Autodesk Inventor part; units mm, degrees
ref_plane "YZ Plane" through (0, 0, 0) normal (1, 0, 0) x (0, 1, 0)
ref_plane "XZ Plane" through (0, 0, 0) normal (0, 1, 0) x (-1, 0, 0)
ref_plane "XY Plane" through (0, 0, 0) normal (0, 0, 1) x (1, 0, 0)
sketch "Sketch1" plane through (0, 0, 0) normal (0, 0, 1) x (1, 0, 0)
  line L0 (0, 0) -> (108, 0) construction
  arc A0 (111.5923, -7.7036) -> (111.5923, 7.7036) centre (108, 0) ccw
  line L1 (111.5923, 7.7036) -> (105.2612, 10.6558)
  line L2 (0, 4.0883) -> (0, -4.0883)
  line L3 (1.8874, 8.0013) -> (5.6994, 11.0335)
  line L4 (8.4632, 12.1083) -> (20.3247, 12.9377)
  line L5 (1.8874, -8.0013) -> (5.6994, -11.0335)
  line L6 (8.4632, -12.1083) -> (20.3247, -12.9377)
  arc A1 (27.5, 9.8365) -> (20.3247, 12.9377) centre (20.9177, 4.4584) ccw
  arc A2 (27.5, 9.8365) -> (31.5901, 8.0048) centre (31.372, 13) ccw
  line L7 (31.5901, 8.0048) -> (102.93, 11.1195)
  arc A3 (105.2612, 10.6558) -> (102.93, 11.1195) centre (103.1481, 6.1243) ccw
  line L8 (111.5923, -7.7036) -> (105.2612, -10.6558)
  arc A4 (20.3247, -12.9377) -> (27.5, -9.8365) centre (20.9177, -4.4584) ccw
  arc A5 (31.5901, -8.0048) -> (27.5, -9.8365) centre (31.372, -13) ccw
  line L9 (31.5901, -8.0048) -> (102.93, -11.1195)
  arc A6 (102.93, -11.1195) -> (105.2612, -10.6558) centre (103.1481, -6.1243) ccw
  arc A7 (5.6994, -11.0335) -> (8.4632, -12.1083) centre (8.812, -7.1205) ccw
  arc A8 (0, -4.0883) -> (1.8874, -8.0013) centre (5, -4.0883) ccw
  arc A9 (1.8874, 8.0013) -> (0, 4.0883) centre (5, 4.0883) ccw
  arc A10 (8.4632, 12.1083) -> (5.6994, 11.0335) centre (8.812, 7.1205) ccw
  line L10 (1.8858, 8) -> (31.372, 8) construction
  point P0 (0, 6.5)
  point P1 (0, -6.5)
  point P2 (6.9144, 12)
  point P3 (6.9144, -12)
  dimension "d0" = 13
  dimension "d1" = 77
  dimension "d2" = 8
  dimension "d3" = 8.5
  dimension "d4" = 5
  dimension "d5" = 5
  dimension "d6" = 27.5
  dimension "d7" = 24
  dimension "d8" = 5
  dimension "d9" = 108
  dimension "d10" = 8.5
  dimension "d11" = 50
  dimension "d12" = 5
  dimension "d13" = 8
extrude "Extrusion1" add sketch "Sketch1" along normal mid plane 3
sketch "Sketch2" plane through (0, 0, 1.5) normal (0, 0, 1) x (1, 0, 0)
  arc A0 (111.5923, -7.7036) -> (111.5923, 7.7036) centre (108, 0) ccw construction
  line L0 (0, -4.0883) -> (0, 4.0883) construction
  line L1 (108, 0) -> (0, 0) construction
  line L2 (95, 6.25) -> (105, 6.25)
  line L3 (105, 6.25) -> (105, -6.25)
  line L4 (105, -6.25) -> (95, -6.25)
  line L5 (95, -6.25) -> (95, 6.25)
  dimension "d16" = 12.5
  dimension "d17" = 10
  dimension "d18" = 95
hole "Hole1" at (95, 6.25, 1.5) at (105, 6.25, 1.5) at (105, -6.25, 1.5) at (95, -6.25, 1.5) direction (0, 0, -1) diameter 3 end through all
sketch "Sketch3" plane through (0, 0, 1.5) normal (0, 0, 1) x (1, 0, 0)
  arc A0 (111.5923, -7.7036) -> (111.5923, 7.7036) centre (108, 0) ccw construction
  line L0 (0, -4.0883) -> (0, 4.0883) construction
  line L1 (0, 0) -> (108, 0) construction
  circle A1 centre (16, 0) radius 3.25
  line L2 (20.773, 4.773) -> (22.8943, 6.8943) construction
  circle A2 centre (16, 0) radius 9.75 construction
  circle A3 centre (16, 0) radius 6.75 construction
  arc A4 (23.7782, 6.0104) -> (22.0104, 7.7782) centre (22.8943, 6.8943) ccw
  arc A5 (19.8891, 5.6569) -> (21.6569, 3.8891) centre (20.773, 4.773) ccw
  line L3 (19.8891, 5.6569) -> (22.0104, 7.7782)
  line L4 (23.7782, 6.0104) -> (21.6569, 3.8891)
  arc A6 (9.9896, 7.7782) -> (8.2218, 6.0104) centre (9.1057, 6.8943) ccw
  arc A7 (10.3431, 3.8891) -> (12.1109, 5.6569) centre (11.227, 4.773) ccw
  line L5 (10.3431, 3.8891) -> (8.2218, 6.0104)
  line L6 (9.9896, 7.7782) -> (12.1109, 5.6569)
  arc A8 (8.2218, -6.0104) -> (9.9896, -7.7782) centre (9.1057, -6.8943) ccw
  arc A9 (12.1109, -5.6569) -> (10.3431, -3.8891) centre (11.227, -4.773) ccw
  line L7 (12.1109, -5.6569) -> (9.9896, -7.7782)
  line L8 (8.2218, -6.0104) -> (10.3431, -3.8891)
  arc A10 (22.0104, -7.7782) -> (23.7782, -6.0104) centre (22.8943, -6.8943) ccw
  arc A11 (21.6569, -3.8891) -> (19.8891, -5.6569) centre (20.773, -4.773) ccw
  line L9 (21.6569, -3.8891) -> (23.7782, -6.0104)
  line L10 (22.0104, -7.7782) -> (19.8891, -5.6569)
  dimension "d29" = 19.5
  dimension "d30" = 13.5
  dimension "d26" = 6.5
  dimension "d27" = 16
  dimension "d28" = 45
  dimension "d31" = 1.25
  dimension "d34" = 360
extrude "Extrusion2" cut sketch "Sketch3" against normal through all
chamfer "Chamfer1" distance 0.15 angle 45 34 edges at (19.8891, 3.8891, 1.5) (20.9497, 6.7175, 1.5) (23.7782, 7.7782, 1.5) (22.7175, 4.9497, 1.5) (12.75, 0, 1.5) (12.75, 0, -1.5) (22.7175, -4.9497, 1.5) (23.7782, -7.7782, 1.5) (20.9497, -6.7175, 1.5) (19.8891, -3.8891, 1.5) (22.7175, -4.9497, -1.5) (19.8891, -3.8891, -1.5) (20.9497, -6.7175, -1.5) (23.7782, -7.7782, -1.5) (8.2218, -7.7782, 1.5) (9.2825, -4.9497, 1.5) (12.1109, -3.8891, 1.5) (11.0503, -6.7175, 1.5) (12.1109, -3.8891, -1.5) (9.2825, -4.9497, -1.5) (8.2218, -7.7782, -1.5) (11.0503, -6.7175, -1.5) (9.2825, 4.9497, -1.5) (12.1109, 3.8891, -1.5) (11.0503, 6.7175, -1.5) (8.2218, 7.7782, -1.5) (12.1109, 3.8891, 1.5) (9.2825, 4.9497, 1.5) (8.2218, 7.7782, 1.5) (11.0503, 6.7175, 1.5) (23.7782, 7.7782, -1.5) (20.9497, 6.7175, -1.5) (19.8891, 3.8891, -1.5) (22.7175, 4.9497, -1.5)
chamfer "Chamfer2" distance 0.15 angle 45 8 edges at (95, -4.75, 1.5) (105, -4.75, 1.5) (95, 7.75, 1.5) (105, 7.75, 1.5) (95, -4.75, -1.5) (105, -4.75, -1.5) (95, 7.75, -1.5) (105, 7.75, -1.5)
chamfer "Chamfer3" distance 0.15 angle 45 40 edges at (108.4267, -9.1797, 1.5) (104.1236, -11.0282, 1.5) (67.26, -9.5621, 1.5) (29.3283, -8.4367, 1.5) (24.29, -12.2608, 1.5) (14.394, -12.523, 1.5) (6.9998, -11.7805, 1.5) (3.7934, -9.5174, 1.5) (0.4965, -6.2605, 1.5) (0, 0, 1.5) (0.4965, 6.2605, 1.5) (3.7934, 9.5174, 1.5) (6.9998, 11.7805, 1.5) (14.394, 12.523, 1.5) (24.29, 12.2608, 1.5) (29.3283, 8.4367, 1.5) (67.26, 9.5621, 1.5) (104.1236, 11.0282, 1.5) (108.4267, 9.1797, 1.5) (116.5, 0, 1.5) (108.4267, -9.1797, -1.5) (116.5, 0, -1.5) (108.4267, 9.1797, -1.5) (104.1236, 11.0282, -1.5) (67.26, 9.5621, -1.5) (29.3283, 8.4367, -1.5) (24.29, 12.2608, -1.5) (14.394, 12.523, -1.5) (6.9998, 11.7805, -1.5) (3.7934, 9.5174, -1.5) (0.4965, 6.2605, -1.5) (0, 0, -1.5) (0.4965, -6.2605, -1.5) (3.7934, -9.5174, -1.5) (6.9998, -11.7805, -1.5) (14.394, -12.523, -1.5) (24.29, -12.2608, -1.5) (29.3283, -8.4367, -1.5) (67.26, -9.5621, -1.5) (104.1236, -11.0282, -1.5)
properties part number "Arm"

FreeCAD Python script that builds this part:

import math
import FreeCAD as App
import Part
import Sketcher
from FreeCAD import Vector
Q = App.Units.Quantity


def edges_at(feature, points):
    """Names of the edges that pass closest to the given points."""
    edges = feature.Shape.Edges
    near = lambda p: min(range(len(edges)), key=lambda i: edges[i].distToShape(Part.Vertex(*p))[0])
    return sorted({f"Edge{near(p) + 1}" for p in points})

doc = App.newDocument("Part")
body = doc.addObject("PartDesign::Body", "Body")

# Sketch on XY plane
sketch1 = doc.addObject("Sketcher::SketchObject", "Sketch")
body.addObject(sketch1)
sketch1.AttachmentSupport = (doc.XY_Plane, [""])
sketch1.MapMode = "FlatFace"
sketch1.addGeometry([
    Part.LineSegment(Vector(105.3, -10.7, 0), Vector(111.6, -7.7, 0)),  # 0
    Part.ArcOfCircle(Part.Circle(Vector(108, 0, 0), Vector(0, 0, 1), 8.5), math.radians(-65), math.radians(65)),  # 1
    Part.LineSegment(Vector(111.6, 7.7, 0), Vector(105.3, 10.7, 0)),  # 2
    Part.ArcOfCircle(Part.Circle(Vector(103.1, 6.1, 0), Vector(0, 0, 1), 5), math.radians(65), math.radians(93)),  # 3
    Part.LineSegment(Vector(102.9, 11.1, 0), Vector(31.6, 8, 0)),  # 4
    Part.ArcOfCircle(Part.Circle(Vector(31.4, 13, 0), Vector(0, 0, 1), 5), math.radians(-141), math.radians(-87)),  # 5
    Part.ArcOfCircle(Part.Circle(Vector(20.9, 4.5, 0), Vector(0, 0, 1), 8.5), math.radians(39), math.radians(94)),  # 6
    Part.LineSegment(Vector(20.3, 12.9, 0), Vector(8.5, 12.1, 0)),  # 7
    Part.ArcOfCircle(Part.Circle(Vector(8.8, 7.1, 0), Vector(0, 0, 1), 5), math.radians(94), math.radians(129)),  # 8
    Part.LineSegment(Vector(5.7, 11, 0), Vector(1.9, 8, 0)),  # 9
    Part.ArcOfCircle(Part.Circle(Vector(5, 4.1, 0), Vector(0, 0, 1), 5), math.radians(129), math.radians(180)),  # 10
    Part.LineSegment(Vector(0, 4.1, 0), Vector(0, -4.1, 0)),  # 11
    Part.ArcOfCircle(Part.Circle(Vector(5, -4.1, 0), Vector(0, 0, 1), 5), math.radians(180), math.radians(231)),  # 12
    Part.LineSegment(Vector(1.9, -8, 0), Vector(5.7, -11, 0)),  # 13
    Part.ArcOfCircle(Part.Circle(Vector(8.8, -7.1, 0), Vector(0, 0, 1), 5), math.radians(-129), math.radians(-94)),  # 14
    Part.LineSegment(Vector(8.5, -12.1, 0), Vector(20.3, -12.9, 0)),  # 15
    Part.ArcOfCircle(Part.Circle(Vector(20.9, -4.5, 0), Vector(0, 0, 1), 8.5), math.radians(-94), math.radians(-39)),  # 16
    Part.ArcOfCircle(Part.Circle(Vector(31.4, -13, 0), Vector(0, 0, 1), 5), math.radians(87), math.radians(141)),  # 17
    Part.LineSegment(Vector(31.6, -8, 0), Vector(102.9, -11.1, 0)),  # 18
    Part.ArcOfCircle(Part.Circle(Vector(103.1, -6.1, 0), Vector(0, 0, 1), 5), math.radians(-93), math.radians(-65)),  # 19
], False)
sketch1.addConstraint([
    Sketcher.Constraint("Tangent", 0, 2, 1, 1),
    Sketcher.Constraint("Tangent", 1, 2, 2, 1),
    Sketcher.Constraint("Tangent", 2, 2, 3, 1),
    Sketcher.Constraint("Tangent", 3, 2, 4, 1),
    Sketcher.Constraint("Tangent", 4, 2, 5, 2),
    Sketcher.Constraint("Tangent", 5, 1, 6, 1),
    Sketcher.Constraint("Tangent", 6, 2, 7, 1),
    Sketcher.Constraint("Tangent", 7, 2, 8, 1),
    Sketcher.Constraint("Tangent", 8, 2, 9, 1),
    Sketcher.Constraint("Tangent", 9, 2, 10, 1),
    Sketcher.Constraint("Tangent", 10, 2, 11, 1),
    Sketcher.Constraint("Tangent", 11, 2, 12, 1),
    Sketcher.Constraint("Tangent", 12, 2, 13, 1),
    Sketcher.Constraint("Tangent", 13, 2, 14, 1),
    Sketcher.Constraint("Tangent", 14, 2, 15, 1),
    Sketcher.Constraint("Tangent", 15, 2, 16, 1),
    Sketcher.Constraint("Tangent", 16, 2, 17, 2),
    Sketcher.Constraint("Tangent", 17, 1, 18, 1),
    Sketcher.Constraint("Tangent", 18, 2, 19, 1),
    Sketcher.Constraint("Tangent", 19, 2, 0, 1),
    Sketcher.Constraint("Vertical", 11),
    Sketcher.Constraint("Equal", 3, 5),
    Sketcher.Constraint("Equal", 1, 6),
    Sketcher.Constraint("Equal", 5, 8),
    Sketcher.Constraint("Equal", 8, 10),
    Sketcher.Constraint("Equal", 10, 12),
    Sketcher.Constraint("Equal", 12, 14),
    Sketcher.Constraint("Equal", 6, 16),
    Sketcher.Constraint("Equal", 14, 17),
    Sketcher.Constraint("Equal", 17, 19),
    Sketcher.Constraint("Symmetric", 10, 2, 11, 2, -1, 1),
    Sketcher.Constraint("Symmetric", 8, 3, 14, 3, -1),
    Sketcher.Constraint("Symmetric", 6, 3, 16, 3, -1),
    Sketcher.Constraint("Symmetric", 3, 3, 19, 3, -1),
    Sketcher.Constraint("PointOnObject", 1, 3, -1),
    Sketcher.Constraint("Vertical", 5, 3, 17, 3),
    Sketcher.Constraint("Radius", 3, 5.0),
    Sketcher.Constraint("Radius", 1, 8.5),
    Sketcher.Constraint("DistanceX", -1, 1, 1, 3, 108.0),
    Sketcher.Constraint("DistanceY", -1, 1, 5, 3, 13.0),
    Sketcher.Constraint("DistanceX", -1, 1, 5, 1, 27.5),
    Sketcher.Constraint("Angle", 0, Q("24.9997 deg")),
    Sketcher.Constraint("Angle", 7, Q("-176.0002 deg")),
    Sketcher.Constraint("Angle", 4, Q("-177.5 deg")),
    Sketcher.Constraint("Angle", 9, Q("-141.5 deg")),
    Sketcher.Constraint("DistanceX", -1, 1, 4, 2, 31.59),
    Sketcher.Constraint("DistanceX", 8, 3, 5, 3, 22.56),
])
pad1 = doc.addObject("PartDesign::Pad", "Pad")
body.addObject(pad1)
pad1.Profile = sketch1
pad1.Length = 3
pad1.Midplane = True

# Sketch on XY plane
sketch2 = doc.addObject("Sketcher::SketchObject", "Sketch001")
body.addObject(sketch2)
sketch2.AttachmentSupport = (doc.XY_Plane, [""])
sketch2.MapMode = "FlatFace"
sketch2.AttachmentOffset = App.Placement(Vector(0, 0, 1.5), App.Rotation())
sketch2.addGeometry([
    Part.Circle(Vector(95, 6.2, 0), Vector(0, 0, 1), 1.5),
    Part.Circle(Vector(105, 6.2, 0), Vector(0, 0, 1), 1.5),
    Part.Circle(Vector(105, -6.2, 0), Vector(0, 0, 1), 1.5),
    Part.Circle(Vector(95, -6.2, 0), Vector(0, 0, 1), 1.5),
], False)
sketch2.addConstraint([
    Sketcher.Constraint("Equal", 0, 1),
    Sketcher.Constraint("Equal", 1, 2),
    Sketcher.Constraint("Equal", 2, 3),
    Sketcher.Constraint("Symmetric", 1, 3, 2, 3, -1),
    Sketcher.Constraint("Symmetric", 0, 3, 3, 3, -1),
    Sketcher.Constraint("Horizontal", 0, 3, 1, 3),
    Sketcher.Constraint("Diameter", 0, 3.0),
    Sketcher.Constraint("DistanceX", -1, 1, 0, 3, 95.0),
    Sketcher.Constraint("DistanceX", -1, 1, 1, 3, 105.0),
    Sketcher.Constraint("DistanceY", 2, 3, 1, 3, 12.5),
])
doc.recompute()
hole = doc.addObject("PartDesign::Hole", "Hole")
body.addObject(hole)
hole.Profile = sketch2
hole.ThreadType = "None"
hole.Diameter = 3
hole.DepthType = "ThroughAll"

# Sketch on XY plane
sketch3 = doc.addObject("Sketcher::SketchObject", "Sketch002")
body.addObject(sketch3)
sketch3.AttachmentSupport = (doc.XY_Plane, [""])
sketch3.MapMode = "FlatFace"
sketch3.AttachmentOffset = App.Placement(Vector(0, 0, 1.5), App.Rotation())
sketch3.addGeometry([
    Part.Circle(Vector(16, 0, 0), Vector(0, 0, 1), 3.2),  # 0
    Part.LineSegment(Vector(21.7, 3.9, 0), Vector(23.8, 6, 0)),  # 1
    Part.ArcOfCircle(Part.Circle(Vector(22.9, 6.9, 0), Vector(0, 0, 1), 1.3), math.radians(-45), math.radians(135)),  # 2
    Part.LineSegment(Vector(22, 7.8, 0), Vector(19.9, 5.7, 0)),  # 3
    Part.ArcOfCircle(Part.Circle(Vector(20.8, 4.8, 0), Vector(0, 0, 1), 1.3), math.radians(135), math.radians(315)),  # 4
    Part.LineSegment(Vector(12.1, 5.7, 0), Vector(10, 7.8, 0)),  # 5
    Part.ArcOfCircle(Part.Circle(Vector(9.1, 6.9, 0), Vector(0, 0, 1), 1.3), math.radians(45), math.radians(225)),  # 6
    Part.LineSegment(Vector(8.2, 6, 0), Vector(10.3, 3.9, 0)),  # 7
    Part.ArcOfCircle(Part.Circle(Vector(11.2, 4.8, 0), Vector(0, 0, 1), 1.3), math.radians(-135), math.radians(45)),  # 8
    Part.LineSegment(Vector(10.3, -3.9, 0), Vector(8.2, -6, 0)),  # 9
    Part.ArcOfCircle(Part.Circle(Vector(9.1, -6.9, 0), Vector(0, 0, 1), 1.3), math.radians(135), math.radians(315)),  # 10
    Part.LineSegment(Vector(10, -7.8, 0), Vector(12.1, -5.7, 0)),  # 11
    Part.ArcOfCircle(Part.Circle(Vector(11.2, -4.8, 0), Vector(0, 0, 1), 1.3), math.radians(-45), math.radians(135)),  # 12
    Part.LineSegment(Vector(19.9, -5.7, 0), Vector(22, -7.8, 0)),  # 13
    Part.ArcOfCircle(Part.Circle(Vector(22.9, -6.9, 0), Vector(0, 0, 1), 1.3), math.radians(-135), math.radians(45)),  # 14
    Part.LineSegment(Vector(23.8, -6, 0), Vector(21.7, -3.9, 0)),  # 15
    Part.ArcOfCircle(Part.Circle(Vector(20.8, -4.8, 0), Vector(0, 0, 1), 1.3), math.radians(45), math.radians(225)),  # 16
], False)
sketch3.addConstraint([
    Sketcher.Constraint("Tangent", 1, 2, 2, 1),
    Sketcher.Constraint("Tangent", 2, 2, 3, 1),
    Sketcher.Constraint("Tangent", 3, 2, 4, 1),
    Sketcher.Constraint("Tangent", 4, 2, 1, 1),
    Sketcher.Constraint("Tangent", 5, 2, 6, 1),
    Sketcher.Constraint("Tangent", 6, 2, 7, 1),
    Sketcher.Constraint("Tangent", 7, 2, 8, 1),
    Sketcher.Constraint("Tangent", 8, 2, 5, 1),
    Sketcher.Constraint("Tangent", 9, 2, 10, 1),
    Sketcher.Constraint("Tangent", 10, 2, 11, 1),
    Sketcher.Constraint("Tangent", 11, 2, 12, 1),
    Sketcher.Constraint("Tangent", 12, 2, 9, 1),
    Sketcher.Constraint("Tangent", 13, 2, 14, 1),
    Sketcher.Constraint("Tangent", 14, 2, 15, 1),
    Sketcher.Constraint("Tangent", 15, 2, 16, 1),
    Sketcher.Constraint("Tangent", 16, 2, 13, 1),
    Sketcher.Constraint("Equal", 2, 4),
    Sketcher.Constraint("Equal", 4, 6),
    Sketcher.Constraint("Equal", 6, 8),
    Sketcher.Constraint("Equal", 8, 10),
    Sketcher.Constraint("Equal", 10, 12),
    Sketcher.Constraint("Equal", 12, 14),
    Sketcher.Constraint("Equal", 14, 16),
    Sketcher.Constraint("Symmetric", 6, 3, 10, 3, -1),
    Sketcher.Constraint("Symmetric", 8, 3, 12, 3, -1),
    Sketcher.Constraint("Symmetric", 2, 3, 14, 3, -1),
    Sketcher.Constraint("Symmetric", 4, 3, 16, 3, -1),
    Sketcher.Constraint("PointOnObject", 0, 3, -1),
    Sketcher.Constraint("Perpendicular", 3, 5),
    Sketcher.Constraint("Perpendicular", 7, 9),
    Sketcher.Constraint("Horizontal", 2, 3, 6, 3),
    Sketcher.Constraint("Horizontal", 4, 3, 8, 3),
    Sketcher.Constraint("Diameter", 0, 6.5),
    Sketcher.Constraint("Radius", 2, 1.25),
    Sketcher.Constraint("DistanceX", -1, 1, 0, 3, 16.0),
    Sketcher.Constraint("Distance", 1, 3.0),
    Sketcher.Constraint("DistanceX", -1, 1, 4, 3, 20.773),
    Sketcher.Constraint("DistanceY", -1, 1, 4, 3, 4.773),
    Sketcher.Constraint("DistanceX", -1, 1, 8, 3, 11.227),
])
pocket1 = doc.addObject("PartDesign::Pocket", "Pocket")
body.addObject(pocket1)
pocket1.Profile = sketch3
pocket1.Type = "ThroughAll"
doc.recompute()

chamfer = doc.addObject("PartDesign::Chamfer", "Chamfer")
body.addObject(chamfer)
chamfer.Base = (pocket1, edges_at(pocket1, [
    (19.889, 3.889, 1.5),
    (20.95, 6.718, 1.5),
    (23.778, 7.778, 1.5),
    (22.718, 4.95, 1.5),
    (12.75, 0, 1.5),
    (12.75, 0, -1.5),
    (22.718, -4.95, 1.5),
    (23.778, -7.778, 1.5),
    (20.95, -6.718, 1.5),
    (19.889, -3.889, 1.5),
    (22.718, -4.95, -1.5),
    (19.889, -3.889, -1.5),
    (20.95, -6.718, -1.5),
    (23.778, -7.778, -1.5),
    (8.222, -7.778, 1.5),
    (9.283, -4.95, 1.5),
    (12.111, -3.889, 1.5),
    (11.05, -6.718, 1.5),
    (12.111, -3.889, -1.5),
    (9.283, -4.95, -1.5),
    (8.222, -7.778, -1.5),
    (11.05, -6.718, -1.5),
    (9.283, 4.95, -1.5),
    (12.111, 3.889, -1.5),
    (11.05, 6.718, -1.5),
    (8.222, 7.778, -1.5),
    (12.111, 3.889, 1.5),
    (9.283, 4.95, 1.5),
    (8.222, 7.778, 1.5),
    (11.05, 6.718, 1.5),
    (23.778, 7.778, -1.5),
    (20.95, 6.718, -1.5),
    (19.889, 3.889, -1.5),
    (22.718, 4.95, -1.5),
]))
chamfer.Size = 0.15
doc.recompute()

chamfer2 = doc.addObject("PartDesign::Chamfer", "Chamfer001")
body.addObject(chamfer2)
chamfer2.Base = (chamfer, edges_at(chamfer, [
    (95, -4.75, 1.5),
    (105, -4.75, 1.5),
    (95, 7.75, 1.5),
    (105, 7.75, 1.5),
    (95, -4.75, -1.5),
    (105, -4.75, -1.5),
    (95, 7.75, -1.5),
    (105, 7.75, -1.5),
]))
chamfer2.Size = 0.15
doc.recompute()

chamfer3 = doc.addObject("PartDesign::Chamfer", "Chamfer002")
body.addObject(chamfer3)
chamfer3.Base = (chamfer2, edges_at(chamfer2, [
    (108.427, -9.18, 1.5),
    (104.124, -11.028, 1.5),
    (67.26, -9.562, 1.5),
    (29.328, -8.437, 1.5),
    (24.29, -12.261, 1.5),
    (14.394, -12.523, 1.5),
    (7, -11.78, 1.5),
    (3.793, -9.517, 1.5),
    (0.496, -6.261, 1.5),
    (0, 0, 1.5),
    (0.496, 6.261, 1.5),
    (3.793, 9.517, 1.5),
    (7, 11.78, 1.5),
    (14.394, 12.523, 1.5),
    (24.29, 12.261, 1.5),
    (29.328, 8.437, 1.5),
    (67.26, 9.562, 1.5),
    (104.124, 11.028, 1.5),
    (108.427, 9.18, 1.5),
    (116.5, 0, 1.5),
    (108.427, -9.18, -1.5),
    (116.5, 0, -1.5),
    (108.427, 9.18, -1.5),
    (104.124, 11.028, -1.5),
    (67.26, 9.562, -1.5),
    (29.328, 8.437, -1.5),
    (24.29, 12.261, -1.5),
    (14.394, 12.523, -1.5),
    (7, 11.78, -1.5),
    (3.793, 9.517, -1.5),
    (0.496, 6.261, -1.5),
    (0, 0, -1.5),
    (0.496, -6.261, -1.5),
    (3.793, -9.517, -1.5),
    (7, -11.78, -1.5),
    (14.394, -12.523, -1.5),
    (24.29, -12.261, -1.5),
    (29.328, -8.437, -1.5),
    (67.26, -9.562, -1.5),
    (104.124, -11.028, -1.5),
]))
chamfer3.Size = 0.15

doc.recompute()
